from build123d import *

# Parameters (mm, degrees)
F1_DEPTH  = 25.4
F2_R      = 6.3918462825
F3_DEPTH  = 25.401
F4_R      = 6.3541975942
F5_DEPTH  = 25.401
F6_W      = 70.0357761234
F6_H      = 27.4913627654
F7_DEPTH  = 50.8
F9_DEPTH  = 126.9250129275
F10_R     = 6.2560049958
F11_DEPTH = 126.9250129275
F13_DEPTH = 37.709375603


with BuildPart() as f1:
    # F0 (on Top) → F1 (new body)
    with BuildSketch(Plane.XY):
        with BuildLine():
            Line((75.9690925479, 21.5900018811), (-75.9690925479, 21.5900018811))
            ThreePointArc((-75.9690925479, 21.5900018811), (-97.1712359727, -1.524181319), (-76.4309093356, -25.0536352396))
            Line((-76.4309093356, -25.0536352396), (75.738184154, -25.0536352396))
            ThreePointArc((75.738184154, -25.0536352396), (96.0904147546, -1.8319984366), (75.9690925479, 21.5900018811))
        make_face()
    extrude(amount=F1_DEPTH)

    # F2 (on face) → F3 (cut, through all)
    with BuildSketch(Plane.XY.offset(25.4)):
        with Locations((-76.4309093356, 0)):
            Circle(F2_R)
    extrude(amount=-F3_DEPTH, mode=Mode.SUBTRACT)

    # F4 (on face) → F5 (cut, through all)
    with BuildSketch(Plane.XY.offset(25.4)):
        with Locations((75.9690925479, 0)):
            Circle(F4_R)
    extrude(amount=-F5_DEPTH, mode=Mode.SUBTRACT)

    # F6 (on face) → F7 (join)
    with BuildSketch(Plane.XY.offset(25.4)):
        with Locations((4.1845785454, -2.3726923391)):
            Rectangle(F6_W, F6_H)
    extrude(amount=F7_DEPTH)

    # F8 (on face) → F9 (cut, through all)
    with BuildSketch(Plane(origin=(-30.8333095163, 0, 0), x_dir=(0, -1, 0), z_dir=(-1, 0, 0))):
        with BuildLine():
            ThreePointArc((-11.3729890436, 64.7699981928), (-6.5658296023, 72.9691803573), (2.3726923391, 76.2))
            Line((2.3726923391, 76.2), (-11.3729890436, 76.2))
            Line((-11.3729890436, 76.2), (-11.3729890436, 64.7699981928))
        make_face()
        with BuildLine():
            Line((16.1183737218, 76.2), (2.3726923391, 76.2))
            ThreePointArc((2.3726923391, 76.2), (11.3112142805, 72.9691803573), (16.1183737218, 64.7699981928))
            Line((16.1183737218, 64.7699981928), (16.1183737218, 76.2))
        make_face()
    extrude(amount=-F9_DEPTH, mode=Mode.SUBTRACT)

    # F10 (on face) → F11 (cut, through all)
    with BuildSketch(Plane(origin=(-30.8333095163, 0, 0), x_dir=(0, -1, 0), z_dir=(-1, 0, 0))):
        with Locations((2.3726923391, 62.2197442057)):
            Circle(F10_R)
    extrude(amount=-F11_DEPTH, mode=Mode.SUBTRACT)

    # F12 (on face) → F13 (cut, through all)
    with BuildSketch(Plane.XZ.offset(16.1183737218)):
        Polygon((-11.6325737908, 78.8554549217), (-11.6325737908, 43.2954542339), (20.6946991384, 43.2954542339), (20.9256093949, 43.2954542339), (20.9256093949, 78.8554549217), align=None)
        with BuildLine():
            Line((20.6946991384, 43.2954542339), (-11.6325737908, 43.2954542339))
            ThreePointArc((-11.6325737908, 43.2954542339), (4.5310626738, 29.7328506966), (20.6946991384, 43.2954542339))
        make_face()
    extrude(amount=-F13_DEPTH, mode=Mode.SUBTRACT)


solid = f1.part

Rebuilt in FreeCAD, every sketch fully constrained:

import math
import FreeCAD as App
import Part
import Sketcher
Q = App.Units.Quantity


def add_polygon(sketch, points):
    """Adds a closed chain of lines whose ends are joined by coincident constraints."""
    first, n = sketch.GeometryCount, len(points)
    for a, b in zip(points, points[1:] + points[:1]):
        sketch.addGeometry(Part.LineSegment(App.Vector(*a, 0), App.Vector(*b, 0)), False)
    for i in range(n):
        sketch.addConstraint(Sketcher.Constraint("Coincident", first + i, 2, first + (i + 1) % n, 1))

doc = App.newDocument("Part")
params = doc.addObject("Spreadsheet::Sheet", "Params")
for row, (alias, value) in enumerate([
    ("pad1_length", "1 in"),
    ("pad2_length", "2 in"),
    ("sketch5_height", "0.4500001 in"),
    ("sketch7_height", "1.4 in"),
], start=1):
    params.set(f"A{row}", alias)
    params.set(f"B{row}", "=" + value)
    params.setAlias(f"B{row}", alias)

body = doc.addObject("PartDesign::Body", "Body")

sketch1 = body.newObject("Sketcher::SketchObject", "Sketch")
sketch1.AttachmentSupport = (doc.getObject("XY_Plane"), [""])
sketch1.MapMode = "FlatFace"
sketch1.addGeometry([
    Part.LineSegment(App.Vector(76, 22, 0), App.Vector(-76, 22, 0)),
    Part.ArcOfCircle(Part.Circle(App.Vector(-74, -2, 0), App.Vector(0, 0, 1), 23), math.radians(96), math.radians(263)),
    Part.LineSegment(App.Vector(-76, -25, 0), App.Vector(76, -25, 0)),
    Part.ArcOfCircle(Part.Circle(App.Vector(73, -2, 0), App.Vector(0, 0, 1), 24), math.radians(-82), math.radians(82)),
], False)
sketch1.addConstraint([
    Sketcher.Constraint("Coincident", 0, 2, 1, 1),
    Sketcher.Constraint("Coincident", 1, 2, 2, 1),
    Sketcher.Constraint("Coincident", 2, 2, 3, 1),
    Sketcher.Constraint("Coincident", 3, 2, 0, 1),
    Sketcher.Constraint("Horizontal", 0),
    Sketcher.Constraint("Horizontal", 2),
    Sketcher.Constraint("DistanceX", 1, 2, 3, 2, Q("6.0000001 in")),
    Sketcher.Constraint("DistanceY", -1, 1, 0, 2, Q("0.8500001 in")),
    Sketcher.Constraint("Radius", 1, Q("23.454702 mm")),
    Sketcher.Constraint("Radius", 3, Q("23.55726 mm")),
    Sketcher.Constraint("DistanceX", 0, 2, 0, 1, Q("151.938185 mm")),
    Sketcher.Constraint("DistanceX", 2, 1, 2, 2, Q("152.169093 mm")),
    Sketcher.Constraint("DistanceY", 3, 3, -1, 1, Q("1.71538 mm")),
    Sketcher.Constraint("DistanceX", 1, 2, -1, 1, Q("76.430909 mm")),
])
pad1 = body.newObject("PartDesign::Pad", "Pad")
pad1.Profile = sketch1
pad1.setExpression("Length", "Params.pad1_length")

sketch2 = body.newObject("Sketcher::SketchObject", "Sketch001")
sketch2.AttachmentSupport = (doc.getObject("XY_Plane"), [""])
sketch2.MapMode = "FlatFace"
sketch2.AttachmentOffset = App.Placement(App.Vector(0, 0, 1 * 25.4), App.Rotation())
sketch2.addGeometry(Part.Circle(App.Vector(-76, 0, 0), App.Vector(0, 0, 1), 6), False)
sketch2.addConstraint([
    Sketcher.Constraint("PointOnObject", 0, 3, -1),
    Sketcher.Constraint("Diameter", 0, Q("12.783693 mm")),
    Sketcher.Constraint("DistanceX", 0, 3, -1, 1, Q("76.430909 mm")),
])
pocket1 = body.newObject("PartDesign::Pocket", "Pocket")
pocket1.Profile = sketch2
pocket1.Type = "ThroughAll"

sketch3 = body.newObject("Sketcher::SketchObject", "Sketch002")
sketch3.AttachmentSupport = (doc.getObject("XY_Plane"), [""])
sketch3.MapMode = "FlatFace"
sketch3.AttachmentOffset = App.Placement(App.Vector(0, 0, 1 * 25.4), App.Rotation())
sketch3.addGeometry(Part.Circle(App.Vector(76, 0, 0), App.Vector(0, 0, 1), 6), False)
sketch3.addConstraint([
    Sketcher.Constraint("PointOnObject", 0, 3, -1),
    Sketcher.Constraint("Diameter", 0, Q("12.708395 mm")),
    Sketcher.Constraint("DistanceX", -1, 1, 0, 3, Q("75.969093 mm")),
])
pocket2 = body.newObject("PartDesign::Pocket", "Pocket001")
pocket2.Profile = sketch3
pocket2.Type = "ThroughAll"

sketch4 = body.newObject("Sketcher::SketchObject", "Sketch003")
sketch4.AttachmentSupport = (doc.getObject("XY_Plane"), [""])
sketch4.MapMode = "FlatFace"
sketch4.AttachmentOffset = App.Placement(App.Vector(0, 0, 1 * 25.4), App.Rotation())
add_polygon(sketch4, [(-31, 11), (-31, -16), (39, -16), (39, 11)])
sketch4.addConstraint([
    Sketcher.Constraint("Vertical", 0),
    Sketcher.Constraint("Horizontal", 1),
    Sketcher.Constraint("Vertical", 2),
    Sketcher.Constraint("Horizontal", 3),
    Sketcher.Constraint("DistanceX", 1, 1, 1, 2, Q("70.035776 mm")),
    Sketcher.Constraint("DistanceY", 0, 2, 0, 1, Q("27.491363 mm")),
    Sketcher.Constraint("DistanceX", 0, 2, -1, 1, Q("30.83331 mm")),
    Sketcher.Constraint("DistanceY", -1, 1, 2, 2, Q("11.372989 mm")),
])
pad2 = body.newObject("PartDesign::Pad", "Pad001")
pad2.Profile = sketch4
pad2.setExpression("Length", "Params.pad2_length")

sketch5 = body.newObject("Sketcher::SketchObject", "Sketch004")
sketch5.AttachmentSupport = (doc.getObject("YZ_Plane"), [""])
sketch5.MapMode = "FlatFace"
sketch5.AttachmentOffset = App.Placement(App.Vector(0, 0, -30.83331), App.Rotation())
sketch5.addGeometry([
    Part.ArcOfCircle(Part.Circle(App.Vector(-2, 62, 0), App.Vector(0, 0, 1), 14), math.radians(11), math.radians(90)),
    Part.LineSegment(App.Vector(-2, 76, 0), App.Vector(11, 76, 0)),
    Part.LineSegment(App.Vector(11, 76, 0), App.Vector(11, 65, 0)),
    Part.LineSegment(App.Vector(-16, 76, 0), App.Vector(-2, 76, 0)),
    Part.ArcOfCircle(Part.Circle(App.Vector(-2, 62, 0), App.Vector(0, 0, 1), 14), math.radians(90), math.radians(169)),
    Part.LineSegment(App.Vector(-16, 65, 0), App.Vector(-16, 76, 0)),
], False)
sketch5.addConstraint([
    Sketcher.Constraint("Tangent", 0, 2, 1, 1),
    Sketcher.Constraint("Coincident", 1, 2, 2, 1),
    Sketcher.Constraint("Coincident", 2, 2, 0, 1),
    Sketcher.Constraint("Tangent", 3, 2, 4, 1),
    Sketcher.Constraint("Coincident", 4, 2, 5, 1),
    Sketcher.Constraint("Coincident", 5, 2, 3, 1),
    Sketcher.Constraint("Horizontal", 1),
    Sketcher.Constraint("Vertical", 2),
    Sketcher.Constraint("Horizontal", 3),
    Sketcher.Constraint("Vertical", 5),
    Sketcher.Constraint("Coincident", 4, 3, 0, 3),
    Sketcher.Constraint("Equal", 0, 4),
    Sketcher.Constraint("Horizontal", 2, 2, 4, 2),
    Sketcher.Constraint("DistanceY", -1, 1, 0, 2, Q("3 in")),
    Sketcher.Constraint("DistanceY", 2, 2, 2, 1, Q("0.4500001 in")),
    Sketcher.Constraint("Radius", 0, Q("13.980256 mm")),
    Sketcher.Constraint("DistanceX", -1, 1, 1, 2, Q("11.372989 mm")),
])
sketch5.setExpression("Constraints[14]", "Params.sketch5_height")
pocket3 = body.newObject("PartDesign::Pocket", "Pocket002")
pocket3.Profile = sketch5
pocket3.Type = "ThroughAll"
pocket3.Reversed = True

sketch6 = body.newObject("Sketcher::SketchObject", "Sketch005")
sketch6.AttachmentSupport = (doc.getObject("YZ_Plane"), [""])
sketch6.MapMode = "FlatFace"
sketch6.AttachmentOffset = App.Placement(App.Vector(0, 0, -30.83331), App.Rotation())
sketch6.addGeometry(Part.Circle(App.Vector(-2, 62, 0), App.Vector(0, 0, 1), 6), False)
sketch6.addConstraint([
    Sketcher.Constraint("Diameter", 0, Q("12.51201 mm")),
    Sketcher.Constraint("DistanceX", 0, 3, -1, 1, Q("2.372692 mm")),
    Sketcher.Constraint("DistanceY", -1, 1, 0, 3, Q("62.219744 mm")),
])
pocket4 = body.newObject("PartDesign::Pocket", "Pocket003")
pocket4.Profile = sketch6
pocket4.Type = "ThroughAll"
pocket4.Reversed = True

sketch7 = body.newObject("Sketcher::SketchObject", "Sketch006")
sketch7.AttachmentSupport = (doc.getObject("XZ_Plane"), [""])
sketch7.MapMode = "FlatFace"
sketch7.AttachmentOffset = App.Placement(App.Vector(0, 0, 16.118374), App.Rotation())
sketch7.addGeometry([
    Part.LineSegment(App.Vector(-11.63, 78.86, 0), App.Vector(-11.63, 43.3, 0)),
    Part.ArcOfCircle(Part.Circle(App.Vector(4.53, 46.15, 0), App.Vector(0, 0, 1), 16.41), math.radians(-170), math.radians(-10)),
    Part.LineSegment(App.Vector(20.69, 43.3, 0), App.Vector(20.93, 43.3, 0)),
    Part.LineSegment(App.Vector(20.93, 43.3, 0), App.Vector(20.93, 78.86, 0)),
    Part.LineSegment(App.Vector(20.93, 78.86, 0), App.Vector(-11.63, 78.86, 0)),
], False)
sketch7.addConstraint([
    Sketcher.Constraint("Coincident", 0, 2, 1, 1),
    Sketcher.Constraint("Coincident", 1, 2, 2, 1),
    Sketcher.Constraint("Coincident", 2, 2, 3, 1),
    Sketcher.Constraint("Coincident", 3, 2, 4, 1),
    Sketcher.Constraint("Coincident", 4, 2, 0, 1),
    Sketcher.Constraint("Vertical", 0),
    Sketcher.Constraint("Horizontal", 2),
    Sketcher.Constraint("Vertical", 3),
    Sketcher.Constraint("Horizontal", 4),
    Sketcher.Constraint("Horizontal", 0, 2, 1, 2),
    Sketcher.Constraint("DistanceY", 0, 2, 0, 1, Q("1.4 in")),
    Sketcher.Constraint("Radius", 1, Q("16.413049 mm")),
    Sketcher.Constraint("DistanceX", 2, 1, 2, 2, Q("0.23091 mm")),
    Sketcher.Constraint("DistanceY", -1, 1, 1, 3, Q("46.1459 mm")),
    Sketcher.Constraint("DistanceX", -1, 1, 1, 2, Q("20.694699 mm")),
    Sketcher.Constraint("DistanceX", 4, 2, 4, 1, Q("32.558183 mm")),
])
sketch7.setExpression("Constraints[10]", "Params.sketch7_height")
pocket5 = body.newObject("PartDesign::Pocket", "Pocket004")
pocket5.Profile = sketch7
pocket5.Type = "ThroughAll"

doc.recompute()
